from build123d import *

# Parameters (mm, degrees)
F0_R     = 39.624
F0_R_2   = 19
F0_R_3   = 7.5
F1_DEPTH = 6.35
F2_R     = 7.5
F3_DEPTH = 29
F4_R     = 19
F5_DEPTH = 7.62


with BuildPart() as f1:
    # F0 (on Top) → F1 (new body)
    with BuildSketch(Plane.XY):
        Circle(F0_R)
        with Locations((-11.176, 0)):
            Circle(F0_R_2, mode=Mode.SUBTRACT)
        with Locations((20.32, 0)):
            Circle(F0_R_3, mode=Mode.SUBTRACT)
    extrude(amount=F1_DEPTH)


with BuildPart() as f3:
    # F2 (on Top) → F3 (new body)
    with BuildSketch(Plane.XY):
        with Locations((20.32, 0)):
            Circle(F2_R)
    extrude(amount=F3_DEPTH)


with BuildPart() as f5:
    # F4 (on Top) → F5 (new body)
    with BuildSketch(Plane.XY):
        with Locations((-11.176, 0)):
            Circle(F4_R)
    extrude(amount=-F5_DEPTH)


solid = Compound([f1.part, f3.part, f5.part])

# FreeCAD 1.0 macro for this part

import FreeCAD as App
import Part
import Sketcher
from FreeCAD import Vector
Q = App.Units.Quantity

doc = App.newDocument("Part")
body = doc.addObject("PartDesign::Body", "Body")

# Sketch on XY plane
sketch1 = body.newObject("Sketcher::SketchObject", "Sketch")
sketch1.AttachmentSupport = (doc.getObject("XY_Plane"), [""])
sketch1.MapMode = "FlatFace"
sketch1.addGeometry([
    Part.Circle(Vector(0, 0, 0), Vector(0, 0, 1), 40),
    Part.Circle(Vector(-11, 0, 0), Vector(0, 0, 1), 19),
    Part.Circle(Vector(20, 0, 0), Vector(0, 0, 1), 8),
], False)
sketch1.addConstraint([
    Sketcher.Constraint("Coincident", 0, 3, -1, 1),
    Sketcher.Constraint("PointOnObject", 1, 3, -1),
    Sketcher.Constraint("PointOnObject", 2, 3, -1),
    Sketcher.Constraint("Diameter", 1, Q("38 mm")),
    Sketcher.Constraint("Diameter", 2, Q("15 mm")),
    Sketcher.Constraint("Diameter", 0, Q("79.248 mm")),
    Sketcher.Constraint("DistanceX", -1, 1, 2, 3, Q("20.32 mm")),
    Sketcher.Constraint("DistanceX", 1, 3, -1, 1, Q("11.176 mm")),
])
pad1 = body.newObject("PartDesign::Pad", "Pad")
pad1.Profile = sketch1
pad1.Length = 6.35
body2 = doc.addObject("PartDesign::Body", "Body001")

# Sketch on XY plane
sketch2 = body2.newObject("Sketcher::SketchObject", "Sketch001")
sketch2.AttachmentSupport = (doc.getObject("XY_Plane001"), [""])
sketch2.MapMode = "FlatFace"
sketch2.addGeometry(Part.Circle(Vector(20, 0, 0), Vector(0, 0, 1), 8), False)
sketch2.addConstraint([
    Sketcher.Constraint("PointOnObject", 0, 3, -1),
    Sketcher.Constraint("Diameter", 0, Q("15 mm")),
    Sketcher.Constraint("DistanceX", -1, 1, 0, 3, Q("20.32 mm")),
])
pad2 = body2.newObject("PartDesign::Pad", "Pad001")
pad2.Profile = sketch2
pad2.Length = 29
body3 = doc.addObject("PartDesign::Body", "Body002")

# Sketch on XY plane
sketch3 = body3.newObject("Sketcher::SketchObject", "Sketch002")
sketch3.AttachmentSupport = (doc.getObject("XY_Plane002"), [""])
sketch3.MapMode = "FlatFace"
sketch3.addGeometry(Part.Circle(Vector(-11, 0, 0), Vector(0, 0, 1), 19), False)
sketch3.addConstraint([
    Sketcher.Constraint("PointOnObject", 0, 3, -1),
    Sketcher.Constraint("Diameter", 0, Q("38 mm")),
    Sketcher.Constraint("DistanceX", 0, 3, -1, 1, Q("11.176 mm")),
])
pad3 = body3.newObject("PartDesign::Pad", "Pad002")
pad3.Profile = sketch3
pad3.Length = 7.62
pad3.Reversed = True

doc.recompute()
